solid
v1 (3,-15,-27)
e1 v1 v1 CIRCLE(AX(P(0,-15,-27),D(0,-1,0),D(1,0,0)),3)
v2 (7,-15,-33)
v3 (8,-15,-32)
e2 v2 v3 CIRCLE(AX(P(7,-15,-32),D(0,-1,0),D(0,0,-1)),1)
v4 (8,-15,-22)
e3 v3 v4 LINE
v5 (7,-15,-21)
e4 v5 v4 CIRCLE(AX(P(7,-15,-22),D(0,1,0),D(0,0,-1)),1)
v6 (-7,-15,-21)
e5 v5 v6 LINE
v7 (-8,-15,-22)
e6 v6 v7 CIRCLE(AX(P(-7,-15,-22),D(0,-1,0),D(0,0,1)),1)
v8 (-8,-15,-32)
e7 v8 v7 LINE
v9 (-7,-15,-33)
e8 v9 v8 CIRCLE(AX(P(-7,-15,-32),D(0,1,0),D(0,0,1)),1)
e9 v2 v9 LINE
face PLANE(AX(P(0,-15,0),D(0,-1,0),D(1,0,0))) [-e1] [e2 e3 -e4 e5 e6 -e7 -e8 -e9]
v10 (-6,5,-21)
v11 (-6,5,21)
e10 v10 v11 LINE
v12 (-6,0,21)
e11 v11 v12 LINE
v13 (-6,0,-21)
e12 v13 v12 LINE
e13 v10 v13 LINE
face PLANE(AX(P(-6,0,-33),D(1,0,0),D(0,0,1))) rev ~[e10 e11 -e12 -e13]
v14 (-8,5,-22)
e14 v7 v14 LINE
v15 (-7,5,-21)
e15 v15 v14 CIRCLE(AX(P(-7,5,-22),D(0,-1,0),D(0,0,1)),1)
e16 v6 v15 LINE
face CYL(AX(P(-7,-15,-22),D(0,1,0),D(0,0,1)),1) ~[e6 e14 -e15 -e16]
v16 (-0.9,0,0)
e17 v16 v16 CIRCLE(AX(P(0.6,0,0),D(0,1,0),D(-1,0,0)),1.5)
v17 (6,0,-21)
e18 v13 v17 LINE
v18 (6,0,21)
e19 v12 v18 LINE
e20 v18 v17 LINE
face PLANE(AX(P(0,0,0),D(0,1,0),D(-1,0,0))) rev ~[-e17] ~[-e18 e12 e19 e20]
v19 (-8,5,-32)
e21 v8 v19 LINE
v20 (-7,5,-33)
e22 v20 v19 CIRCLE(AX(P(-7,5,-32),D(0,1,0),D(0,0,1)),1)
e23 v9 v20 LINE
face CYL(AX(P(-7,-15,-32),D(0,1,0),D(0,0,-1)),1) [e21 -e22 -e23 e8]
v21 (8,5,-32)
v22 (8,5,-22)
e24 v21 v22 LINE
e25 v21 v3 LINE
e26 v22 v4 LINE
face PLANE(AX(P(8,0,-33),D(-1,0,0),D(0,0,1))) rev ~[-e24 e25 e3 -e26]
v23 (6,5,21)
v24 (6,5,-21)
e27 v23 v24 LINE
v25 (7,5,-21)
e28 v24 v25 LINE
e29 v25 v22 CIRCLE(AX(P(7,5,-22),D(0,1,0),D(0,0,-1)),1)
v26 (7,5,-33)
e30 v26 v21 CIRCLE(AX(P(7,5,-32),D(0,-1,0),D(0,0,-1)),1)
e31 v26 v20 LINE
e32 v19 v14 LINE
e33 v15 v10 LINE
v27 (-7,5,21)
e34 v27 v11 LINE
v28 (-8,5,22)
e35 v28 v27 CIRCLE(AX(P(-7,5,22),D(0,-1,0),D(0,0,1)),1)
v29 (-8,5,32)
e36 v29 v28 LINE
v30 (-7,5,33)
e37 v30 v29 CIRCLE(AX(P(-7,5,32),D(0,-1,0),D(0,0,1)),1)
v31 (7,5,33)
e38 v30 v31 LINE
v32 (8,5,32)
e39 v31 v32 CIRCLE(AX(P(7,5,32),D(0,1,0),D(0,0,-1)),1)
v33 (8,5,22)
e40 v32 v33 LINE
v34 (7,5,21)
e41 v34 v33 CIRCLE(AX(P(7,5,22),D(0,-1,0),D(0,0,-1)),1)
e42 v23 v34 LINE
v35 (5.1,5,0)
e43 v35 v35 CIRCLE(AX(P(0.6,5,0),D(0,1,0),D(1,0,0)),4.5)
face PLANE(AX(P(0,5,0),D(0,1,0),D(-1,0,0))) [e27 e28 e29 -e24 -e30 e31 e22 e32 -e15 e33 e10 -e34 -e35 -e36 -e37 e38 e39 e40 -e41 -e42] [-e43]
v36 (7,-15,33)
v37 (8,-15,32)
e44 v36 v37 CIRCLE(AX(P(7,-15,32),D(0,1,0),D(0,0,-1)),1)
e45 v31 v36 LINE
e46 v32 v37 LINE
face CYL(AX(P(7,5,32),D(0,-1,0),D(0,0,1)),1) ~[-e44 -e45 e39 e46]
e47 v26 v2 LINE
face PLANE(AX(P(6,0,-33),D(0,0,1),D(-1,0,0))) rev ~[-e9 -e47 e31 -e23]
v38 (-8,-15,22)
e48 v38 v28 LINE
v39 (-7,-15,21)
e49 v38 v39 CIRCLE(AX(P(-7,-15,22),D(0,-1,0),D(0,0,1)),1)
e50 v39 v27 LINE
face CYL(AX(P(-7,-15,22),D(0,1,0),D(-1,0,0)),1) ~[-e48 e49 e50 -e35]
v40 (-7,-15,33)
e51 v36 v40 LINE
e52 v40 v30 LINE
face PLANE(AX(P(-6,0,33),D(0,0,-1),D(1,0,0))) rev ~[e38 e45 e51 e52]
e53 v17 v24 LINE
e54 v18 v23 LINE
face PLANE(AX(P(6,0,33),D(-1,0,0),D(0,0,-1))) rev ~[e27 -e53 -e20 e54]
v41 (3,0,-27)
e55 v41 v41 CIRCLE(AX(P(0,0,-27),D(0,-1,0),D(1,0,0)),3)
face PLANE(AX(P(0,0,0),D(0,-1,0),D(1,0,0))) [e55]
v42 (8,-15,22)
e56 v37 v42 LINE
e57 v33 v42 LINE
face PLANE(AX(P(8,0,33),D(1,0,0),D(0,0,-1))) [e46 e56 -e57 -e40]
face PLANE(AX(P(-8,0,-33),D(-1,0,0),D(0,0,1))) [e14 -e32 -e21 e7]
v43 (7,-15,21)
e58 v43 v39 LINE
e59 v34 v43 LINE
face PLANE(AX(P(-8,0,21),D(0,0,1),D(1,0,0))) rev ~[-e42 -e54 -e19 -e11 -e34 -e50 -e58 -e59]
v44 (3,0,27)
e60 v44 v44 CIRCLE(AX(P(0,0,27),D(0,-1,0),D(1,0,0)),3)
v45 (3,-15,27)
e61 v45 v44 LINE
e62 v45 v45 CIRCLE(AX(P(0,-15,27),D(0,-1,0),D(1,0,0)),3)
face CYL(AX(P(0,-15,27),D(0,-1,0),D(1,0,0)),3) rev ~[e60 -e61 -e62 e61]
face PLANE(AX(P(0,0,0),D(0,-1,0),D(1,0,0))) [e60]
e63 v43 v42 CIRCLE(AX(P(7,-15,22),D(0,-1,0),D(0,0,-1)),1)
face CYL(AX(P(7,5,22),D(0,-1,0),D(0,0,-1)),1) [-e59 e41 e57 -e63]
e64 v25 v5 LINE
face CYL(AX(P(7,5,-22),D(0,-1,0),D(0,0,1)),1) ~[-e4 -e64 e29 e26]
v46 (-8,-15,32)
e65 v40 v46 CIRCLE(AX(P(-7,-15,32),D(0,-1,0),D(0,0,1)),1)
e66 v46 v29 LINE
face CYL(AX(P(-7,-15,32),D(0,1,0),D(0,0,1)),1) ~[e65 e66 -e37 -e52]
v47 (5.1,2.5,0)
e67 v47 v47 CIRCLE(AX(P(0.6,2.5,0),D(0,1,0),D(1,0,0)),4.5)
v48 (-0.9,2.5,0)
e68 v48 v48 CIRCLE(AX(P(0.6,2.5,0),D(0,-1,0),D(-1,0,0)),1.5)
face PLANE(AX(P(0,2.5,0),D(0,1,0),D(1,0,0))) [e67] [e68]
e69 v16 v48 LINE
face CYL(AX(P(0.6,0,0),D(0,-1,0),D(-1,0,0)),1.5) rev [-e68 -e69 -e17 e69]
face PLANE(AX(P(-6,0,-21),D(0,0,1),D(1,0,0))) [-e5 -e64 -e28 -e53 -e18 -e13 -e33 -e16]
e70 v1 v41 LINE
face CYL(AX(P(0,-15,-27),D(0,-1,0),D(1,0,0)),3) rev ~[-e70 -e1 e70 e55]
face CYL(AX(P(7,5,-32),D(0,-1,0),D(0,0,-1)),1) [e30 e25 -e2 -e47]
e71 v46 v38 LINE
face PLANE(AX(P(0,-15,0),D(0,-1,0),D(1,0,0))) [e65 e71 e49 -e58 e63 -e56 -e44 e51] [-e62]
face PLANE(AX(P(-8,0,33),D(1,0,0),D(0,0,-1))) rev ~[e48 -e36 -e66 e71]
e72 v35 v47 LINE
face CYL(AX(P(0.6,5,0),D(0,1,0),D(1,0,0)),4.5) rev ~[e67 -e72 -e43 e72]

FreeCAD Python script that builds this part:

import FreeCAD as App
import Part
import Sketcher
from FreeCAD import Vector


def edges_at(feature, points):
    """Names of the edges that pass closest to the given points."""
    edges = feature.Shape.Edges
    near = lambda p: min(range(len(edges)), key=lambda i: edges[i].distToShape(Part.Vertex(*p))[0])
    return sorted({f"Edge{near(p) + 1}" for p in points})


def add_polygon(sketch, points):
    """Adds a closed chain of lines whose ends are joined by coincident constraints."""
    first, n = sketch.GeometryCount, len(points)
    for a, b in zip(points, points[1:] + points[:1]):
        sketch.addGeometry(Part.LineSegment(App.Vector(*a, 0), App.Vector(*b, 0)), False)
    for i in range(n):
        sketch.addConstraint(Sketcher.Constraint("Coincident", first + i, 2, first + (i + 1) % n, 1))

doc = App.newDocument("Part")
body = doc.addObject("PartDesign::Body", "Body")

# Sketch on XZ plane
sketch1 = body.newObject("Sketcher::SketchObject", "Sketch")
sketch1.AttachmentSupport = (doc.getObject("XZ_Plane"), [""])
sketch1.MapMode = "FlatFace"
add_polygon(sketch1, [(6, 33), (6, -33), (-6, -33), (-6, 33)])  # lines 0-3
sketch1.addGeometry(Part.Circle(Vector(0.6, 0, 0), Vector(0, 0, 1), 1.5), False)  # 4
sketch1.addConstraint([
    Sketcher.Constraint("Vertical", 0),
    Sketcher.Constraint("Horizontal", 1),
    Sketcher.Constraint("Vertical", 2),
    Sketcher.Constraint("Horizontal", 3),
    Sketcher.Constraint("Symmetric", 0, 2, 2, 2, -1, 1),
    Sketcher.Constraint("PointOnObject", 4, 3, -1),
    Sketcher.Constraint("Diameter", 4, 3.0),
    Sketcher.Constraint("DistanceX", 1, 2, 1, 1, 12.0),
    Sketcher.Constraint("DistanceY", 0, 2, 0, 1, 66.0),
    Sketcher.Constraint("DistanceX", -1, 1, 4, 3, 0.6),
])
pad1 = body.newObject("PartDesign::Pad", "Pad")
pad1.Profile = sketch1
pad1.Length = 5
pad1.Reversed = True

# Sketch on XZ plane
sketch2 = body.newObject("Sketcher::SketchObject", "Sketch001")
sketch2.AttachmentSupport = (doc.getObject("XZ_Plane"), [""])
sketch2.MapMode = "FlatFace"
add_polygon(sketch2, [(8, -33), (8, -21), (-8, -21), (-8, -33)])  # lines 0-3
add_polygon(sketch2, [(-8, 21), (8, 21), (8, 33), (-8, 33)])  # lines 4-7
sketch2.addConstraint([
    Sketcher.Constraint("Vertical", 0),
    Sketcher.Constraint("Horizontal", 1),
    Sketcher.Constraint("Vertical", 2),
    Sketcher.Constraint("Horizontal", 3),
    Sketcher.Constraint("Horizontal", 4),
    Sketcher.Constraint("Vertical", 5),
    Sketcher.Constraint("Horizontal", 6),
    Sketcher.Constraint("Vertical", 7),
    Sketcher.Constraint("Symmetric", 1, 2, 4, 2, -1, 1),
    Sketcher.Constraint("Symmetric", 3, 2, 6, 2, -1, 1),
    Sketcher.Constraint("Vertical", 3, 2, 4, 2),
    Sketcher.Constraint("DistanceY", 0, 1, 0, 2, 12.0),
    Sketcher.Constraint("DistanceX", 1, 2, 1, 1, 16.0),
    Sketcher.Constraint("DistanceY", 0, 2, -1, 1, 21.0),
])
pad2 = body.newObject("PartDesign::Pad", "Pad001")
pad2.Profile = sketch2
pad2.Type = "TwoLengths"
pad2.Length = 15
pad2.Length2 = 5
doc.recompute()

fillet = body.newObject("PartDesign::Fillet", "Fillet")
fillet.Base = (pad2, edges_at(pad2, [
    (-8, -5, -21),
    (-8, -5, 33),
    (-8, -5, 21),
    (8, -5, -21),
    (8, -5, -33),
    (-8, -5, -33),
    (8, -5, 33),
    (8, -5, 21),
]))
fillet.Radius = 1

# Sketch on XZ plane
sketch3 = body.newObject("Sketcher::SketchObject", "Sketch002")
sketch3.AttachmentSupport = (doc.getObject("XZ_Plane"), [""])
sketch3.MapMode = "FlatFace"
sketch3.AttachmentOffset = App.Placement(Vector(0, 0, -5), App.Rotation())
sketch3.addGeometry([
    Part.Circle(Vector(0.6, 0, 0), Vector(0, 0, 1), 4.5),
    Part.Circle(Vector(0.6, 0, 0), Vector(0, 0, 1), 1.5),
], False)
sketch3.addConstraint([
    Sketcher.Constraint("Coincident", 1, 3, 0, 3),
    Sketcher.Constraint("PointOnObject", 0, 3, -1),
    Sketcher.Constraint("Diameter", 0, 9.0),
    Sketcher.Constraint("Diameter", 1, 3.0),
    Sketcher.Constraint("DistanceX", -1, 1, 0, 3, 0.6),
])
pocket1 = body.newObject("PartDesign::Pocket", "Pocket")
pocket1.Profile = sketch3
pocket1.Length = 2.5
pocket1.Reversed = True

# Sketch on XZ plane
sketch4 = body.newObject("Sketcher::SketchObject", "Sketch003")
sketch4.AttachmentSupport = (doc.getObject("XZ_Plane"), [""])
sketch4.MapMode = "FlatFace"
sketch4.AttachmentOffset = App.Placement(Vector(0, 0, 15), App.Rotation())
sketch4.addGeometry([
    Part.Circle(Vector(0, -27, 0), Vector(0, 0, 1), 3),
    Part.Circle(Vector(0, 27, 0), Vector(0, 0, 1), 3),
], False)
sketch4.addConstraint([
    Sketcher.Constraint("Equal", 0, 1),
    Sketcher.Constraint("Symmetric", 0, 3, 1, 3, -1, 1),
    Sketcher.Constraint("PointOnObject", 0, 3, -2),
    Sketcher.Constraint("Diameter", 0, 6.0),
    Sketcher.Constraint("DistanceY", 0, 3, -1, 1, 27.0),
])
pocket2 = body.newObject("PartDesign::Pocket", "Pocket001")
pocket2.Profile = sketch4
pocket2.Length = 15

doc.recompute()
